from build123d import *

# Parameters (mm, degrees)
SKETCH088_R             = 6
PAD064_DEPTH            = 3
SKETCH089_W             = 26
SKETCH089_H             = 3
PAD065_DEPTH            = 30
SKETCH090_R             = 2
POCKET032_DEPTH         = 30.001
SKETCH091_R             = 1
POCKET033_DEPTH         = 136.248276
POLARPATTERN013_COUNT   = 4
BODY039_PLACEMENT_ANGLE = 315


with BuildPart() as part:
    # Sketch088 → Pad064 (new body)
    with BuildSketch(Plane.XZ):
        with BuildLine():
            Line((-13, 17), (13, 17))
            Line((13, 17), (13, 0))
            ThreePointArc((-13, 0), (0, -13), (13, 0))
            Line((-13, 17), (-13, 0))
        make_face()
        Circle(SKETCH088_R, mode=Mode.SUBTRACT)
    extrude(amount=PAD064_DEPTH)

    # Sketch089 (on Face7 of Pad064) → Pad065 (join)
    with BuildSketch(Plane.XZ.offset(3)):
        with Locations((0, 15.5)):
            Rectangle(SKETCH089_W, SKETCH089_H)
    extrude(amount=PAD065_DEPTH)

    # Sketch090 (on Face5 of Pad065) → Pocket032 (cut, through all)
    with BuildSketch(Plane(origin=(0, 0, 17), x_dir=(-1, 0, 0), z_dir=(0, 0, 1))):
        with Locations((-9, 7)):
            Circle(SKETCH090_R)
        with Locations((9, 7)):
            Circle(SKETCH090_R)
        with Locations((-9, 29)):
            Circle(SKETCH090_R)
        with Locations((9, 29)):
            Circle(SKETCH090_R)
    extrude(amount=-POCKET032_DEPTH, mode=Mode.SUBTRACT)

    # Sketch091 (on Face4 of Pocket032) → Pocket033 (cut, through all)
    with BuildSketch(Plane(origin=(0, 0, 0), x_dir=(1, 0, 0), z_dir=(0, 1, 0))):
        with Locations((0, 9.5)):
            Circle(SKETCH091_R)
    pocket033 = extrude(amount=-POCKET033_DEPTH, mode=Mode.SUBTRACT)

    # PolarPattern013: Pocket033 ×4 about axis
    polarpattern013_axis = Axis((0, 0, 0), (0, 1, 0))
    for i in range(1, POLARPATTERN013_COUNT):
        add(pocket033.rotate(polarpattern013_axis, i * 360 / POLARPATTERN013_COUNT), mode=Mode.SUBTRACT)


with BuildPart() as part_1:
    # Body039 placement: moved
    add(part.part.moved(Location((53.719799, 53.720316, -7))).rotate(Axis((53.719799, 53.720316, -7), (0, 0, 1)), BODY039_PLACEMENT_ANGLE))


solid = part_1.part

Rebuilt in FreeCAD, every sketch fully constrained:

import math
import FreeCAD as App
import Part
import Sketcher

doc = App.newDocument("Part")
body = doc.addObject("PartDesign::Body", "Body")

sketch1 = doc.addObject("Sketcher::SketchObject", "Sketch")
body.addObject(sketch1)
sketch1.AttachmentSupport = (doc.XZ_Plane, [""])
sketch1.MapMode = "FlatFace"
sketch1.addGeometry([
    Part.LineSegment(App.Vector(13, 17, 0), App.Vector(-13, 17, 0)),
    Part.LineSegment(App.Vector(-13, 17, 0), App.Vector(-13, 0, 0)),
    Part.ArcOfCircle(Part.Circle(App.Vector(0, 0, 0), App.Vector(0, 0, 1), 13), math.radians(180), math.radians(360)),
    Part.LineSegment(App.Vector(13, 0, 0), App.Vector(13, 17, 0)),
    Part.Circle(App.Vector(0, 0, 0), App.Vector(0, 0, 1), 6),
], False)
sketch1.addConstraint([
    Sketcher.Constraint("Coincident", 0, 2, 1, 1),
    Sketcher.Constraint("Tangent", 1, 2, 2, 1),
    Sketcher.Constraint("Tangent", 2, 2, 3, 1),
    Sketcher.Constraint("Coincident", 3, 2, 0, 1),
    Sketcher.Constraint("Horizontal", 0),
    Sketcher.Constraint("Vertical", 1),
    Sketcher.Constraint("Vertical", 3),
    Sketcher.Constraint("Coincident", 2, 3, -1, 1),
    Sketcher.Constraint("Coincident", 4, 3, -1, 1),
    Sketcher.Constraint("Diameter", 4, 12.0),
    Sketcher.Constraint("Radius", 2, 13.0),
    Sketcher.Constraint("DistanceY", 1, 2, 1, 1, 17.0),
])
pad1 = doc.addObject("PartDesign::Pad", "Pad")
body.addObject(pad1)
pad1.Profile = sketch1
pad1.Length = 3

sketch2 = doc.addObject("Sketcher::SketchObject", "Sketch001")
body.addObject(sketch2)
sketch2.AttachmentSupport = (doc.XZ_Plane, [""])
sketch2.MapMode = "FlatFace"
sketch2.AttachmentOffset = App.Placement(App.Vector(0, 0, 3), App.Rotation())
sketch2.addGeometry([
    Part.LineSegment(App.Vector(-13, 17, 0), App.Vector(-13, 14, 0)),
    Part.LineSegment(App.Vector(-13, 14, 0), App.Vector(13, 14, 0)),
    Part.LineSegment(App.Vector(13, 14, 0), App.Vector(13, 17, 0)),
    Part.LineSegment(App.Vector(13, 17, 0), App.Vector(-13, 17, 0)),
], False)
sketch2.addConstraint([
    Sketcher.Constraint("Coincident", 0, 2, 1, 1),
    Sketcher.Constraint("Coincident", 1, 2, 2, 1),
    Sketcher.Constraint("Coincident", 2, 2, 3, 1),
    Sketcher.Constraint("Coincident", 3, 2, 0, 1),
    Sketcher.Constraint("Vertical", 0),
    Sketcher.Constraint("Horizontal", 1),
    Sketcher.Constraint("Vertical", 2),
    Sketcher.Constraint("Horizontal", 3),
    Sketcher.Constraint("DistanceX", 1, 1, 1, 2, 26.0),
    Sketcher.Constraint("DistanceY", 0, 2, 0, 1, 3.0),
    Sketcher.Constraint("DistanceX", 0, 2, -1, 1, 13.0),
    Sketcher.Constraint("DistanceY", -1, 1, 0, 2, 14.0),
])
pad2 = doc.addObject("PartDesign::Pad", "Pad001")
body.addObject(pad2)
pad2.Profile = sketch2
pad2.Length = 30

sketch3 = doc.addObject("Sketcher::SketchObject", "Sketch002")
body.addObject(sketch3)
sketch3.AttachmentSupport = (doc.XY_Plane, [""])
sketch3.MapMode = "FlatFace"
sketch3.AttachmentOffset = App.Placement(App.Vector(0, 0, 17), App.Rotation())
sketch3.addGeometry([
    Part.Circle(App.Vector(9, -7, 0), App.Vector(0, 0, 1), 2),
    Part.Circle(App.Vector(-9, -7, 0), App.Vector(0, 0, 1), 2),
    Part.Circle(App.Vector(9, -29, 0), App.Vector(0, 0, 1), 2),
    Part.Circle(App.Vector(-9, -29, 0), App.Vector(0, 0, 1), 2),
], False)
sketch3.addConstraint([
    Sketcher.Constraint("Equal", 0, 1),
    Sketcher.Constraint("Equal", 1, 2),
    Sketcher.Constraint("Equal", 2, 3),
    Sketcher.Constraint("Symmetric", 0, 3, 1, 3, -2),
    Sketcher.Constraint("Symmetric", 2, 3, 3, 3, -2),
    Sketcher.Constraint("Vertical", 0, 3, 2, 3),
    Sketcher.Constraint("Diameter", 0, 4.0),
    Sketcher.Constraint("DistanceX", -1, 1, 0, 3, 9.0),
    Sketcher.Constraint("DistanceY", 0, 3, -1, 1, 7.0),
    Sketcher.Constraint("DistanceY", 2, 3, -1, 1, 29.0),
])
pocket1 = doc.addObject("PartDesign::Pocket", "Pocket")
body.addObject(pocket1)
pocket1.Profile = sketch3
pocket1.Type = "ThroughAll"

sketch4 = doc.addObject("Sketcher::SketchObject", "Sketch003")
body.addObject(sketch4)
sketch4.AttachmentSupport = (doc.XZ_Plane, [""])
sketch4.MapMode = "FlatFace"
sketch4.addGeometry(Part.Circle(App.Vector(0, -9.5, 0), App.Vector(0, 0, 1), 1), False)
sketch4.addConstraint([
    Sketcher.Constraint("PointOnObject", 0, 3, -2),
    Sketcher.Constraint("Diameter", 0, 2.0),
    Sketcher.Constraint("DistanceY", 0, 3, -1, 1, 9.5),
])
pocket2 = doc.addObject("PartDesign::Pocket", "Pocket001")
body.addObject(pocket2)
pocket2.Profile = sketch4
pocket2.Type = "ThroughAll"
pocket2.Reversed = True
doc.recompute()

polarpattern = doc.addObject("PartDesign::PolarPattern", "PolarPattern")
body.addObject(polarpattern)
polarpattern.Originals = [pocket2]
polarpattern.Axis = (doc.Y_Axis, [""])
polarpattern.Angle = 360
polarpattern.Occurrences = 4
body.Tip = polarpattern
body2 = doc.addObject("PartDesign::Body", "Body001")
doc.recompute()

body.Placement = App.Placement(App.Vector(53.719799, 53.720316, -7), App.Rotation(App.Vector(0, 0, 1), 315))
boolean = doc.addObject("PartDesign::Boolean", "Boolean")
body2.addObject(boolean)
boolean.Type = "Fuse"
boolean.addObjects([body])

doc.recompute()
